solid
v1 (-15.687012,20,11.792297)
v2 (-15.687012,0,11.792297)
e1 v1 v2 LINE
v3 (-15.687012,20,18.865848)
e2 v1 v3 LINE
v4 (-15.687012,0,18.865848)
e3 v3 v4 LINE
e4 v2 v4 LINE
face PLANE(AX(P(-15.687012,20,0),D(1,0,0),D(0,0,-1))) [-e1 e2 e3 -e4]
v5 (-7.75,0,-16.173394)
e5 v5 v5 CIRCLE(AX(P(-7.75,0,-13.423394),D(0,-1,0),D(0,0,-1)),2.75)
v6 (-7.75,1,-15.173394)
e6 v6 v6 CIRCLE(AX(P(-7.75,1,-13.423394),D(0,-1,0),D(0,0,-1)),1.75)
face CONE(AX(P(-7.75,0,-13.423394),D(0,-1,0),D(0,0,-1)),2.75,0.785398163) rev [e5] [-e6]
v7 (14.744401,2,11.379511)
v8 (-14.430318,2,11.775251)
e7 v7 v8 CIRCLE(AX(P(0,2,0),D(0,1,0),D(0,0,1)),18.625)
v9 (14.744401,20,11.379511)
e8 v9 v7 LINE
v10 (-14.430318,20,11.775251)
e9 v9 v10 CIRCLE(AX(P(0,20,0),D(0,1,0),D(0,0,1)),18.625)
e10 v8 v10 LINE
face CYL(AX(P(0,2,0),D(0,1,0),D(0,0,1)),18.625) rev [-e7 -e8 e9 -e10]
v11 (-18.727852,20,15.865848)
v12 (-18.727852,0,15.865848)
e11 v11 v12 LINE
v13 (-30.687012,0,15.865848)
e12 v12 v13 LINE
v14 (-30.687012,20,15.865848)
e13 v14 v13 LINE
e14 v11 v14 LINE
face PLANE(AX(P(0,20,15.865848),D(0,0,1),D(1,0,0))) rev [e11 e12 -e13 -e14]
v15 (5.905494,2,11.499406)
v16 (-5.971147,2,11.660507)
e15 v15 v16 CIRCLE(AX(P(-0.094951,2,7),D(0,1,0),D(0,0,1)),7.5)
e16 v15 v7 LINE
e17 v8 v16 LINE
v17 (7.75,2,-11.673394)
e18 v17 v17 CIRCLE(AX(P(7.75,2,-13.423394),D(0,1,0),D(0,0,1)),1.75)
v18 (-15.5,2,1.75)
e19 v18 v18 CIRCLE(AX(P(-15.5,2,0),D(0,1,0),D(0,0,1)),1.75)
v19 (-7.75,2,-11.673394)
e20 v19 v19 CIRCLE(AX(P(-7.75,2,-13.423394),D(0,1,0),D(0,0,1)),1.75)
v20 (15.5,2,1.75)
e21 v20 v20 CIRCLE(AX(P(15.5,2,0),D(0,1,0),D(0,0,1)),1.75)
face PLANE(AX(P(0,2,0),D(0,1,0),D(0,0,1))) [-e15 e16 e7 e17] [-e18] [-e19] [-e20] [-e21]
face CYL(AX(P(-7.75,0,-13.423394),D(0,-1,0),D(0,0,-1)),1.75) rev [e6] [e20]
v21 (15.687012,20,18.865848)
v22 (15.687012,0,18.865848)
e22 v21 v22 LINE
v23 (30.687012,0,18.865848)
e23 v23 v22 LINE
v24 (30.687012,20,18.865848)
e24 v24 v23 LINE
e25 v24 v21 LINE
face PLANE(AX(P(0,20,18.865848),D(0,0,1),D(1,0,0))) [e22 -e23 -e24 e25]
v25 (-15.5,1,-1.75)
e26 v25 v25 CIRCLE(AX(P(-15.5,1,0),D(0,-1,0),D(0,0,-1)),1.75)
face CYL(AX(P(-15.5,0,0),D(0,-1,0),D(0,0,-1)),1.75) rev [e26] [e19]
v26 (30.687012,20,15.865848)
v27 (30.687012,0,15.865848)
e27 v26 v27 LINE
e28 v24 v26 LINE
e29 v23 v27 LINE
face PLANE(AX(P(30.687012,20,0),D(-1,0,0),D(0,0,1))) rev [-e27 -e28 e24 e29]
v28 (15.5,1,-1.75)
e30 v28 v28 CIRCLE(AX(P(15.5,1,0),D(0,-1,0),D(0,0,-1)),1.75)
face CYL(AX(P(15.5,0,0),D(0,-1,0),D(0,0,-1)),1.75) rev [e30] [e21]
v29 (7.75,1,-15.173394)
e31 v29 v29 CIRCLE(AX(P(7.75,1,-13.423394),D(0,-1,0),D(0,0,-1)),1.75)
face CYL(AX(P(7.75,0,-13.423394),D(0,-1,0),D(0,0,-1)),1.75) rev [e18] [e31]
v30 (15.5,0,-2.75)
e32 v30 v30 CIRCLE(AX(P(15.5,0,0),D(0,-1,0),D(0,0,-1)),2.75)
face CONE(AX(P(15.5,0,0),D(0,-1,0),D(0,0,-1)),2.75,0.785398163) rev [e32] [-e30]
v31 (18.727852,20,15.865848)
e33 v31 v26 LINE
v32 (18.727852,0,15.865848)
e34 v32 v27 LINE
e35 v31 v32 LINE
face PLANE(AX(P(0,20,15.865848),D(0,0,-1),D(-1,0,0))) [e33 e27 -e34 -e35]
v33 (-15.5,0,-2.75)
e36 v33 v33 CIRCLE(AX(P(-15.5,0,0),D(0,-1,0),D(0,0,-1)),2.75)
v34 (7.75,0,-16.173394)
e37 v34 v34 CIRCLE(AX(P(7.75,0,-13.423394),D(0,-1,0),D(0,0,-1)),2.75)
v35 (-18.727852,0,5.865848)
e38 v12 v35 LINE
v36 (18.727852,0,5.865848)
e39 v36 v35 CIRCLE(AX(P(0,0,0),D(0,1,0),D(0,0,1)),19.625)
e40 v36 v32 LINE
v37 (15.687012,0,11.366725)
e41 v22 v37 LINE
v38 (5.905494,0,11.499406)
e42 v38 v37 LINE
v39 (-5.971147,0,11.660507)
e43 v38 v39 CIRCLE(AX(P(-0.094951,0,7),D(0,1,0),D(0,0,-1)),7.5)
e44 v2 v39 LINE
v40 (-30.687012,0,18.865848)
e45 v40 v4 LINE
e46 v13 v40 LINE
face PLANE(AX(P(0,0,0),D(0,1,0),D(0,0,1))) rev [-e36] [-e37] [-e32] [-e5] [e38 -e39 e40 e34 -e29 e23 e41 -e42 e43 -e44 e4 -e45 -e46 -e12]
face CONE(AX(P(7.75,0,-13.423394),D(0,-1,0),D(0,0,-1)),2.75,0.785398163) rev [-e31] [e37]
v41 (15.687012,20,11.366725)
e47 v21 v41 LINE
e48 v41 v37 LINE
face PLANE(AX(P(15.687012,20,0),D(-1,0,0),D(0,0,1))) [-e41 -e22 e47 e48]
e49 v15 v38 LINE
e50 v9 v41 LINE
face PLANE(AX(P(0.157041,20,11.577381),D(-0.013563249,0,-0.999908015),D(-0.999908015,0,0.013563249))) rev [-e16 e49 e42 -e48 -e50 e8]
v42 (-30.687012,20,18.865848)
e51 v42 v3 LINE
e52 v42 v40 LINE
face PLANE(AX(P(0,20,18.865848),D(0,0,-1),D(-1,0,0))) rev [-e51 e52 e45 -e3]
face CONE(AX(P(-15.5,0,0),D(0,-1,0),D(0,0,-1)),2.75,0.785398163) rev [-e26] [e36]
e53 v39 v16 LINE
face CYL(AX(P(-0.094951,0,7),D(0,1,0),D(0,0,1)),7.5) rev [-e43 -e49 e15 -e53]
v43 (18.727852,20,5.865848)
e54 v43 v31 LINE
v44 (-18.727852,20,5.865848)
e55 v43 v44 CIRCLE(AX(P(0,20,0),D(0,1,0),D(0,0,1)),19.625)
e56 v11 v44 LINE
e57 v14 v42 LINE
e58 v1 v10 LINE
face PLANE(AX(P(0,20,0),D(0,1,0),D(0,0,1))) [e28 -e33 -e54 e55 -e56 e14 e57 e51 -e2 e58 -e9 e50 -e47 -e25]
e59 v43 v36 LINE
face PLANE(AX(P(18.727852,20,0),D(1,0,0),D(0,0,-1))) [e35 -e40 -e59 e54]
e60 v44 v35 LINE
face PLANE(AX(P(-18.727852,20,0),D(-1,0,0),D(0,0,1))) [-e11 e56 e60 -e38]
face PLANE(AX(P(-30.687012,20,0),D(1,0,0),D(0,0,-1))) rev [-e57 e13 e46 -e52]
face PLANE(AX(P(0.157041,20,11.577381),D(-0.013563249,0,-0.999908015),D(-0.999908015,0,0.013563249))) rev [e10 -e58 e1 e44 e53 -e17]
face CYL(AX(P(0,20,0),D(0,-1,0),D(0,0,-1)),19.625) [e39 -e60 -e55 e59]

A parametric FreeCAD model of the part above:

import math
import FreeCAD as App
import Part
import Sketcher
Q = App.Units.Quantity

doc = App.newDocument("Part")
body = doc.addObject("PartDesign::Body", "Body")

sketch1 = body.newObject("Sketcher::SketchObject", "Sketch")
sketch1.AttachmentSupport = (doc.getObject("XZ_Plane"), [""])
sketch1.MapMode = "FlatFace"
sketch1.addGeometry([
    Part.LineSegment(App.Vector(-18.727852, 5.865848, 0), App.Vector(-18.727852, 15.865848, 0)),
    Part.LineSegment(App.Vector(-18.727852, 15.865848, 0), App.Vector(-30.687012, 15.865848, 0)),
    Part.LineSegment(App.Vector(-30.687012, 15.865848, 0), App.Vector(-30.687012, 18.865848, 0)),
    Part.LineSegment(App.Vector(-30.687012, 18.865848, 0), App.Vector(-15.687012, 18.865848, 0)),
    Part.LineSegment(App.Vector(-15.687012, 18.865848, 0), App.Vector(-15.687012, 11.792297, 0)),
    Part.LineSegment(App.Vector(-15.687012, 11.792297, 0), App.Vector(15.687012, 11.366725, 0)),
    Part.LineSegment(App.Vector(15.687012, 11.366725, 0), App.Vector(15.687012, 18.865848, 0)),
    Part.LineSegment(App.Vector(15.687012, 18.865848, 0), App.Vector(30.687012, 18.865848, 0)),
    Part.LineSegment(App.Vector(30.687012, 18.865848, 0), App.Vector(30.687012, 15.865848, 0)),
    Part.LineSegment(App.Vector(30.687012, 15.865848, 0), App.Vector(18.727852, 15.865848, 0)),
    Part.LineSegment(App.Vector(18.727852, 15.865848, 0), App.Vector(18.727852, 5.865848, 0)),
    Part.ArcOfCircle(Part.Circle(App.Vector(0, 0, 0), App.Vector(0, 0, 1), 19.625), math.radians(162.608651), math.radians(377.391349)),
], False)
sketch1.addConstraint([
    Sketcher.Constraint("Coincident", 0, 2, 1, 1),
    Sketcher.Constraint("Coincident", 1, 2, 2, 1),
    Sketcher.Constraint("Coincident", 2, 2, 3, 1),
    Sketcher.Constraint("Coincident", 3, 2, 4, 1),
    Sketcher.Constraint("Coincident", 4, 2, 5, 1),
    Sketcher.Constraint("Coincident", 5, 2, 6, 1),
    Sketcher.Constraint("Coincident", 6, 2, 7, 1),
    Sketcher.Constraint("Coincident", 7, 2, 8, 1),
    Sketcher.Constraint("Coincident", 8, 2, 9, 1),
    Sketcher.Constraint("Coincident", 9, 2, 10, 1),
    Sketcher.Constraint("Coincident", 10, 2, 11, 2),
    Sketcher.Constraint("Coincident", 11, 1, 0, 1),
    Sketcher.Constraint("Vertical", 0),
    Sketcher.Constraint("Horizontal", 1),
    Sketcher.Constraint("Vertical", 2),
    Sketcher.Constraint("Horizontal", 3),
    Sketcher.Constraint("Vertical", 4),
    Sketcher.Constraint("Vertical", 6),
    Sketcher.Constraint("Horizontal", 7),
    Sketcher.Constraint("Vertical", 8),
    Sketcher.Constraint("Horizontal", 9),
    Sketcher.Constraint("Vertical", 10),
    Sketcher.Constraint("Coincident", 11, 3, -1, 1),
    Sketcher.Constraint("Symmetric", 3, 2, 6, 2, -2),
    Sketcher.Constraint("Symmetric", 1, 2, 8, 2, -2),
    Sketcher.Constraint("Horizontal", 10, 2, 11, 1),
    Sketcher.Constraint("DistanceX", 3, 1, 3, 2, Q("15 mm")),
    Sketcher.Constraint("DistanceY", 0, 1, 0, 2, Q("10 mm")),
    Sketcher.Constraint("DistanceY", 2, 1, 2, 2, Q("3 mm")),
    Sketcher.Constraint("Radius", 11, Q("19.625 mm")),
    Sketcher.Constraint("DistanceX", 1, 2, 1, 1, Q("11.95916 mm")),
    Sketcher.Constraint("DistanceY", 4, 2, 4, 1, Q("7.073551 mm")),
    Sketcher.Constraint("Distance", 5, Q("31.37691 mm")),
    Sketcher.Constraint("DistanceY", 6, 1, 6, 2, Q("7.499123 mm")),
])
pad1 = body.newObject("PartDesign::Pad", "Pad")
pad1.Profile = sketch1
pad1.Length = 20
pad1.Reversed = True

sketch2 = body.newObject("Sketcher::SketchObject", "Sketch001")
sketch2.AttachmentSupport = (doc.getObject("XZ_Plane"), [""])
sketch2.MapMode = "FlatFace"
sketch2.AttachmentOffset = App.Placement(App.Vector(0, 0, -20), App.Rotation())
sketch2.addGeometry(Part.Circle(App.Vector(0, 0, 0), App.Vector(0, 0, 1), 18.625), False)
sketch2.addConstraint([
    Sketcher.Constraint("Coincident", 0, 3, -1, 1),
    Sketcher.Constraint("Diameter", 0, Q("37.25 mm")),
])
pocket1 = body.newObject("PartDesign::Pocket", "Pocket")
pocket1.Profile = sketch2
pocket1.Length = 18
pocket1.Reversed = True

sketch3 = body.newObject("Sketcher::SketchObject", "Sketch002")
sketch3.AttachmentSupport = (doc.getObject("XZ_Plane"), [""])
sketch3.MapMode = "FlatFace"
sketch3.AttachmentOffset = App.Placement(App.Vector(0, 0, -2), App.Rotation())
sketch3.addGeometry(Part.Circle(App.Vector(-0.094951, 7, 0), App.Vector(0, 0, 1), 7.5), False)
sketch3.addConstraint([
    Sketcher.Constraint("Diameter", 0, Q("15 mm")),
    Sketcher.Constraint("DistanceY", -1, 1, 0, 3, Q("7 mm")),
    Sketcher.Constraint("DistanceX", 0, 3, -1, 1, Q("0.094951 mm")),
])
pocket2 = body.newObject("PartDesign::Pocket", "Pocket001")
pocket2.Profile = sketch3
pocket2.Length = 2
pocket2.Reversed = True

sketch4 = body.newObject("Sketcher::SketchObject", "Sketch003")
sketch4.AttachmentSupport = (doc.getObject("XZ_Plane"), [""])
sketch4.MapMode = "FlatFace"
sketch4.addGeometry([
    Part.Circle(App.Vector(7.75, -13.423394, 0), App.Vector(0, 0, 1), 1.75),
    Part.Circle(App.Vector(-7.75, -13.423394, 0), App.Vector(0, 0, 1), 1.75),
    Part.Circle(App.Vector(-15.5, 0, 0), App.Vector(0, 0, 1), 1.75),
    Part.Circle(App.Vector(15.5, 0, 0), App.Vector(0, 0, 1), 1.75),
], False)
sketch4.addConstraint([
    Sketcher.Constraint("Equal", 0, 1),
    Sketcher.Constraint("Equal", 1, 2),
    Sketcher.Constraint("Equal", 2, 3),
    Sketcher.Constraint("Symmetric", 2, 3, 3, 3, -1, 1),
    Sketcher.Constraint("Symmetric", 0, 3, 1, 3, -2),
    Sketcher.Constraint("PointOnObject", 2, 3, -1),
    Sketcher.Constraint("Diameter", 0, Q("3.5 mm")),
    Sketcher.Constraint("DistanceX", 2, 3, 3, 3, Q("31 mm")),
    Sketcher.Constraint("DistanceX", 1, 3, 0, 3, Q("15.5 mm")),
    Sketcher.Constraint("DistanceY", 0, 3, -1, 1, Q("13.423394 mm")),
])
doc.recompute()
hole = body.newObject("PartDesign::Hole", "Hole")
hole.Profile = sketch4
hole.ThreadType = "None"
hole.Diameter = 3.5
hole.DepthType = "ThroughAll"
hole.HoleCutType = "Countersink"
hole.HoleCutDiameter = 5.5
hole.HoleCutCountersinkAngle = 90

doc.recompute()
